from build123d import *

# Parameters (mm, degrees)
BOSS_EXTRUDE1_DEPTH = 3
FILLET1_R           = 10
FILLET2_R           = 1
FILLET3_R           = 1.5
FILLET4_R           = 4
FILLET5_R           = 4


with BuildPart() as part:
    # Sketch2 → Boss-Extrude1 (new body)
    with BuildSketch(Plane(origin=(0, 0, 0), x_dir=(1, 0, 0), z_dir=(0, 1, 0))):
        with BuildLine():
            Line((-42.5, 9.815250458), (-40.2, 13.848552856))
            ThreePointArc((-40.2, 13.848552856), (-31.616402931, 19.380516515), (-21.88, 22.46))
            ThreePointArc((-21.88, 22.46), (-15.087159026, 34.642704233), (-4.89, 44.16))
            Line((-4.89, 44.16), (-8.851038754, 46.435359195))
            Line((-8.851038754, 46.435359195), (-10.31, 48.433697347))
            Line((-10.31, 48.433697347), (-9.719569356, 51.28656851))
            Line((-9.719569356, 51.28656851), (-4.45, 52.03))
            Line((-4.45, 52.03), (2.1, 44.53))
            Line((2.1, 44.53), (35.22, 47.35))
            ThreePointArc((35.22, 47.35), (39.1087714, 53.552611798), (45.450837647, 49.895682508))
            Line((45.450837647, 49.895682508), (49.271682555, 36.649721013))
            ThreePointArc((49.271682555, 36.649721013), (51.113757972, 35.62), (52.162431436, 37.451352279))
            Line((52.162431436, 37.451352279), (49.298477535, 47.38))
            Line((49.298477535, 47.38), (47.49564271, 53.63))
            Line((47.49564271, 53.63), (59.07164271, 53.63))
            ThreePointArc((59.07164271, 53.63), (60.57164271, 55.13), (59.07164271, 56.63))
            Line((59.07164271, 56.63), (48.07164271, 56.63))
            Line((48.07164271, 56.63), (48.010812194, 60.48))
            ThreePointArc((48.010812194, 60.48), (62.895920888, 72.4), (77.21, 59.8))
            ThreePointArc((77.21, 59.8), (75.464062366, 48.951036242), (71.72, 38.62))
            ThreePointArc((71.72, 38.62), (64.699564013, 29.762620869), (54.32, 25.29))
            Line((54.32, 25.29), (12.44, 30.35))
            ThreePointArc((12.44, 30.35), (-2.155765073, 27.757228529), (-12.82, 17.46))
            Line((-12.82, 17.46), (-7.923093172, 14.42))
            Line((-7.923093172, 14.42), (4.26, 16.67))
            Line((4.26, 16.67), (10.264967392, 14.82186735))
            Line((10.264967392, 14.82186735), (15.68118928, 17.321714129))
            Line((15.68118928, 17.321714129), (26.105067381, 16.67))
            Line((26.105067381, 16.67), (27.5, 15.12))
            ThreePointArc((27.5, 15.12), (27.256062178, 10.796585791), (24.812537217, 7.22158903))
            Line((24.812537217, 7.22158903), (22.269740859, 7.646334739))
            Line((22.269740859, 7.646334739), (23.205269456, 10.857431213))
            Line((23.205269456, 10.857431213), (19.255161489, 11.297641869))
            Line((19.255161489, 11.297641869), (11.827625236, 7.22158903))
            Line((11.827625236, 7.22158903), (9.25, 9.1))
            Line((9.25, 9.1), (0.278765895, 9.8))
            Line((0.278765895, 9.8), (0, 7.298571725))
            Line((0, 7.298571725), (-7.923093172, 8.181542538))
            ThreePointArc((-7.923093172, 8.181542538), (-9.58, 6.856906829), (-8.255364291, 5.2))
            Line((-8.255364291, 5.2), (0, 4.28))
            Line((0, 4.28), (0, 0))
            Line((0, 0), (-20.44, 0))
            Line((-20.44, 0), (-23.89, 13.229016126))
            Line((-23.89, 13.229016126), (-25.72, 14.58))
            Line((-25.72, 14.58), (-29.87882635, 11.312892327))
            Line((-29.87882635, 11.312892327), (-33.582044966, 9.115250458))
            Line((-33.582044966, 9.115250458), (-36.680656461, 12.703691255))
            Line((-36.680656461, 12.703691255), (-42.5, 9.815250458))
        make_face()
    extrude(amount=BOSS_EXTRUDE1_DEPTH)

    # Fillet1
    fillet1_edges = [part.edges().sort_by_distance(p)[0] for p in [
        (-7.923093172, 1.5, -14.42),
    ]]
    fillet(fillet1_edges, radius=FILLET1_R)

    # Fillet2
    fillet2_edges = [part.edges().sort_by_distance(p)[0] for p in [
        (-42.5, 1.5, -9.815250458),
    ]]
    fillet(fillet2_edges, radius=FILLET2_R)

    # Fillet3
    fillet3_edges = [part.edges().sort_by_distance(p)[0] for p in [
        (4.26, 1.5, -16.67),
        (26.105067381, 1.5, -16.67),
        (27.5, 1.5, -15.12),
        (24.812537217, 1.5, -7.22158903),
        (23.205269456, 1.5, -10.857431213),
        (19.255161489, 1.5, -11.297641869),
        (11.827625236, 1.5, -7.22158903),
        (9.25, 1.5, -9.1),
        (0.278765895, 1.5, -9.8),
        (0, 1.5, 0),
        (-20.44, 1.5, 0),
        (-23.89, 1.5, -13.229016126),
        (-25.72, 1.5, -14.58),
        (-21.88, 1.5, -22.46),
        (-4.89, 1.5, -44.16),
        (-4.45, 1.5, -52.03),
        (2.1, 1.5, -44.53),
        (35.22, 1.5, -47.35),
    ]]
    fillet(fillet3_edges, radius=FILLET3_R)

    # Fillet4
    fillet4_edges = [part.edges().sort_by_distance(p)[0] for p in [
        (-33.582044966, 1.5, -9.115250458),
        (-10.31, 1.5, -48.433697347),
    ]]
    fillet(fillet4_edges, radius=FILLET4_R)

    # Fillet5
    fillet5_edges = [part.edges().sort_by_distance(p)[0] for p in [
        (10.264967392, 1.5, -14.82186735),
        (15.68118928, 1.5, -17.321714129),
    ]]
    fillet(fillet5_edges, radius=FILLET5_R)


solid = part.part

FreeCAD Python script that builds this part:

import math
import FreeCAD as App
import Part
import Sketcher
from FreeCAD import Vector
Q = App.Units.Quantity


def edges_at(feature, points):
    """Names of the edges that pass closest to the given points."""
    edges = feature.Shape.Edges
    near = lambda p: min(range(len(edges)), key=lambda i: edges[i].distToShape(Part.Vertex(*p))[0])
    return sorted({f"Edge{near(p) + 1}" for p in points})

doc = App.newDocument("Part")
body = doc.addObject("PartDesign::Body", "Body")

# Sketch on XZ plane
sketch1 = doc.addObject("Sketcher::SketchObject", "Sketch")
body.addObject(sketch1)
sketch1.AttachmentSupport = (doc.XZ_Plane, [""])
sketch1.MapMode = "FlatFace"
sketch1.addGeometry(Part.LineSegment(Vector(-40.2, -13.848553, 0), Vector(-42.5, -9.81525, 0)), False)
sketch1.addGeometry(Part.LineSegment(Vector(-42.5, -9.81525, 0), Vector(-36.680656, -12.703691, 0)), False)
sketch1.addGeometry(Part.LineSegment(Vector(-36.680656, -12.703691, 0), Vector(-33.582045, -9.11525, 0)), False)
sketch1.addGeometry(Part.LineSegment(Vector(-33.582045, -9.11525, 0), Vector(-29.878826, -11.312892, 0)), False)
sketch1.addGeometry(Part.LineSegment(Vector(-29.878826, -11.312892, 0), Vector(-25.72, -14.58, 0)), False)
sketch1.addGeometry(Part.LineSegment(Vector(-25.72, -14.58, 0), Vector(-23.89, -13.229016, 0)), False)
sketch1.addGeometry(Part.LineSegment(Vector(-23.89, -13.229016, 0), Vector(-20.44, 0, 0)), False)
sketch1.addGeometry(Part.LineSegment(Vector(-20.44, 0, 0), Vector(0, 0, 0)), False)
sketch1.addGeometry(Part.LineSegment(Vector(0, 0, 0), Vector(0, -4.28, 0)), False)
sketch1.addGeometry(Part.LineSegment(Vector(0, -4.28, 0), Vector(-8.255364, -5.2, 0)), False)
sketch1.addGeometry(Part.ArcOfCircle(Part.Circle(Vector(-8.089229, -6.690771, 0), Vector(0, 0, 1), 1.5), math.radians(96.358957), math.radians(276.358957)), False)
sketch1.addGeometry(Part.LineSegment(Vector(-7.923093, -8.181543, 0), Vector(0, -7.298572, 0)), False)
sketch1.addGeometry(Part.LineSegment(Vector(0, -7.298572, 0), Vector(0.278766, -9.8, 0)), False)
sketch1.addGeometry(Part.LineSegment(Vector(0.278766, -9.8, 0), Vector(9.25, -9.1, 0)), False)
sketch1.addGeometry(Part.LineSegment(Vector(9.25, -9.1, 0), Vector(11.827625, -7.221589, 0)), False)
sketch1.addGeometry(Part.LineSegment(Vector(11.827625, -7.221589, 0), Vector(19.255161, -11.297642, 0)), False)
sketch1.addGeometry(Part.LineSegment(Vector(19.255161, -11.297642, 0), Vector(23.205269, -10.857431, 0)), False)
sketch1.addGeometry(Part.LineSegment(Vector(23.205269, -10.857431, 0), Vector(22.269741, -7.646335, 0)), False)
sketch1.addGeometry(Part.LineSegment(Vector(22.269741, -7.646335, 0), Vector(24.812537, -7.221589, 0)), False)
sketch1.addGeometry(Part.ArcOfCircle(Part.Circle(Vector(19.615642, -13.396266, 0), Vector(0, 0, 1), 8.070586), math.radians(-12.332363), math.radians(49.914477)), False)
sketch1.addGeometry(Part.LineSegment(Vector(27.5, -15.12, 0), Vector(26.105067, -16.67, 0)), False)
sketch1.addGeometry(Part.LineSegment(Vector(26.105067, -16.67, 0), Vector(15.681189, -17.321714, 0)), False)
sketch1.addGeometry(Part.LineSegment(Vector(15.681189, -17.321714, 0), Vector(10.264967, -14.821867, 0)), False)
sketch1.addGeometry(Part.LineSegment(Vector(10.264967, -14.821867, 0), Vector(4.26, -16.67, 0)), False)
sketch1.addGeometry(Part.LineSegment(Vector(4.26, -16.67, 0), Vector(-7.923093, -14.42, 0)), False)
sketch1.addGeometry(Part.LineSegment(Vector(-7.923093, -14.42, 0), Vector(-12.82, -17.46, 0)), False)
sketch1.addGeometry(Part.ArcOfCircle(Part.Circle(Vector(9.392476, -5.126618, 0), Vector(0, 0, 1), 25.406818), math.radians(-150.958964), math.radians(-83.110837)), False)
sketch1.addGeometry(Part.LineSegment(Vector(12.44, -30.35, 0), Vector(54.32, -25.29, 0)), False)
sketch1.addGeometry(Part.ArcOfCircle(Part.Circle(Vector(50.63545, -48.12088, 0), Vector(0, 0, 1), 23.126283), math.radians(24.256736), math.radians(80.832394)), False)
sketch1.addGeometry(Part.ArcOfCircle(Part.Circle(Vector(18.837855, -63.628934, 0), Vector(0, 0, 1), 58.49759), math.radians(3.752953), math.radians(25.310324)), False)
sketch1.addGeometry(Part.ArcOfCircle(Part.Circle(Vector(62.550722, -57.577172, 0), Vector(0, 0, 1), 14.826847), math.radians(-168.709598), math.radians(-8.62224)), False)
sketch1.addGeometry(Part.LineSegment(Vector(48.010812, -60.48, 0), Vector(48.071643, -56.63, 0)), False)
sketch1.addGeometry(Part.LineSegment(Vector(48.071643, -56.63, 0), Vector(59.071643, -56.63, 0)), False)
sketch1.addGeometry(Part.ArcOfCircle(Part.Circle(Vector(59.071643, -55.13, 0), Vector(0, 0, 1), 1.5), math.radians(-90), math.radians(90)), False)
sketch1.addGeometry(Part.LineSegment(Vector(59.071643, -53.63, 0), Vector(47.495643, -53.63, 0)), False)
sketch1.addGeometry(Part.LineSegment(Vector(47.495643, -53.63, 0), Vector(49.298478, -47.38, 0)), False)
sketch1.addGeometry(Part.LineSegment(Vector(49.298478, -47.38, 0), Vector(52.162431, -37.451352, 0)), False)
sketch1.addGeometry(Part.ArcOfCircle(Part.Circle(Vector(50.712921, -37.065451, 0), Vector(0, 0, 1), 1.5), math.radians(-14.907973), math.radians(163.909605)), False)
sketch1.addGeometry(Part.LineSegment(Vector(49.271683, -36.649721, 0), Vector(45.450838, -49.895683, 0)), False)
sketch1.addGeometry(Part.ArcOfCircle(Part.Circle(Vector(40.382482, -48.433697, 0), Vector(0, 0, 1), 5.275), math.radians(168.144728), math.radians(343.909605)), False)
sketch1.addGeometry(Part.LineSegment(Vector(35.22, -47.35, 0), Vector(2.1, -44.53, 0)), False)
sketch1.addGeometry(Part.LineSegment(Vector(2.1, -44.53, 0), Vector(-4.45, -52.03, 0)), False)
sketch1.addGeometry(Part.LineSegment(Vector(-4.45, -52.03, 0), Vector(-9.719569, -51.286569, 0)), False)
sketch1.addGeometry(Part.LineSegment(Vector(-9.719569, -51.286569, 0), Vector(-10.31, -48.433697, 0)), False)
sketch1.addGeometry(Part.LineSegment(Vector(-10.31, -48.433697, 0), Vector(-8.851039, -46.435359, 0)), False)
sketch1.addGeometry(Part.LineSegment(Vector(-8.851039, -46.435359, 0), Vector(-4.89, -44.16, 0)), False)
sketch1.addGeometry(Part.ArcOfCircle(Part.Circle(Vector(20.344268, -6.901693, 0), Vector(0, 0, 1), 44.999441), math.radians(-159.772754), math.radians(-124.108959)), False)
sketch1.addGeometry(Part.ArcOfCircle(Part.Circle(Vector(-15.246348, 15.445153, 0), Vector(0, 0, 1), 38.481242), math.radians(-130.425801), math.radians(-99.926613)), False)
sketch1.addConstraint(Sketcher.Constraint("Coincident", 0, 2, 1, 1))
sketch1.addConstraint(Sketcher.Constraint("Coincident", 1, 2, 2, 1))
sketch1.addConstraint(Sketcher.Constraint("Coincident", 2, 2, 3, 1))
sketch1.addConstraint(Sketcher.Constraint("Coincident", 3, 2, 4, 1))
sketch1.addConstraint(Sketcher.Constraint("Coincident", 4, 2, 5, 1))
sketch1.addConstraint(Sketcher.Constraint("Coincident", 5, 2, 6, 1))
sketch1.addConstraint(Sketcher.Constraint("Coincident", 6, 2, 7, 1))
sketch1.addConstraint(Sketcher.Constraint("Coincident", 7, 2, 8, 1))
sketch1.addConstraint(Sketcher.Constraint("Coincident", 8, 2, 9, 1))
sketch1.addConstraint(Sketcher.Constraint("Coincident", 9, 2, 10, 1))
sketch1.addConstraint(Sketcher.Constraint("Coincident", 10, 2, 11, 1))
sketch1.addConstraint(Sketcher.Constraint("Coincident", 11, 2, 12, 1))
sketch1.addConstraint(Sketcher.Constraint("Coincident", 12, 2, 13, 1))
sketch1.addConstraint(Sketcher.Constraint("Coincident", 13, 2, 14, 1))
sketch1.addConstraint(Sketcher.Constraint("Coincident", 14, 2, 15, 1))
sketch1.addConstraint(Sketcher.Constraint("Coincident", 15, 2, 16, 1))
sketch1.addConstraint(Sketcher.Constraint("Coincident", 16, 2, 17, 1))
sketch1.addConstraint(Sketcher.Constraint("Coincident", 17, 2, 18, 1))
sketch1.addConstraint(Sketcher.Constraint("Coincident", 18, 2, 19, 2))
sketch1.addConstraint(Sketcher.Constraint("Coincident", 19, 1, 20, 1))
sketch1.addConstraint(Sketcher.Constraint("Coincident", 20, 2, 21, 1))
sketch1.addConstraint(Sketcher.Constraint("Coincident", 21, 2, 22, 1))
sketch1.addConstraint(Sketcher.Constraint("Coincident", 22, 2, 23, 1))
sketch1.addConstraint(Sketcher.Constraint("Coincident", 23, 2, 24, 1))
sketch1.addConstraint(Sketcher.Constraint("Coincident", 24, 2, 25, 1))
sketch1.addConstraint(Sketcher.Constraint("Coincident", 25, 2, 26, 1))
sketch1.addConstraint(Sketcher.Constraint("Coincident", 26, 2, 27, 1))
sketch1.addConstraint(Sketcher.Constraint("Coincident", 27, 2, 28, 2))
sketch1.addConstraint(Sketcher.Constraint("Coincident", 28, 1, 29, 2))
sketch1.addConstraint(Sketcher.Constraint("Coincident", 29, 1, 30, 2))
sketch1.addConstraint(Sketcher.Constraint("Coincident", 30, 1, 31, 1))
sketch1.addConstraint(Sketcher.Constraint("Coincident", 31, 2, 32, 1))
sketch1.addConstraint(Sketcher.Constraint("Coincident", 32, 2, 33, 1))
sketch1.addConstraint(Sketcher.Constraint("Coincident", 33, 2, 34, 1))
sketch1.addConstraint(Sketcher.Constraint("Coincident", 34, 2, 35, 1))
sketch1.addConstraint(Sketcher.Constraint("Coincident", 35, 2, 36, 1))
sketch1.addConstraint(Sketcher.Constraint("Coincident", 36, 2, 37, 1))
sketch1.addConstraint(Sketcher.Constraint("Coincident", 37, 2, 38, 1))
sketch1.addConstraint(Sketcher.Constraint("Coincident", 38, 2, 39, 2))
sketch1.addConstraint(Sketcher.Constraint("Coincident", 39, 1, 40, 1))
sketch1.addConstraint(Sketcher.Constraint("Coincident", 40, 2, 41, 1))
sketch1.addConstraint(Sketcher.Constraint("Coincident", 41, 2, 42, 1))
sketch1.addConstraint(Sketcher.Constraint("Coincident", 42, 2, 43, 1))
sketch1.addConstraint(Sketcher.Constraint("Coincident", 43, 2, 44, 1))
sketch1.addConstraint(Sketcher.Constraint("Coincident", 44, 2, 45, 1))
sketch1.addConstraint(Sketcher.Constraint("Coincident", 45, 2, 46, 2))
sketch1.addConstraint(Sketcher.Constraint("Coincident", 46, 1, 47, 2))
sketch1.addConstraint(Sketcher.Constraint("Coincident", 47, 1, 0, 1))
sketch1.addConstraint(Sketcher.Constraint("Horizontal", 7))
sketch1.addConstraint(Sketcher.Constraint("Vertical", 8))
sketch1.addConstraint(Sketcher.Constraint("Horizontal", 32))
sketch1.addConstraint(Sketcher.Constraint("Horizontal", 34))
sketch1.addConstraint(Sketcher.Constraint("Coincident", 7, 2, -1, 1))
sketch1.addConstraint(Sketcher.Constraint("PointOnObject", 11, 2, -2))
sketch1.addConstraint(Sketcher.Constraint("Radius", 10, Q("1.5 mm")))
sketch1.addConstraint(Sketcher.Constraint("Radius", 33, Q("1.5 mm")))
sketch1.addConstraint(Sketcher.Constraint("Radius", 37, Q("1.5 mm")))
sketch1.addConstraint(Sketcher.Constraint("DistanceX", 32, 1, 32, 2, Q("11 mm")))
sketch1.addConstraint(Sketcher.Constraint("Radius", 39, Q("5.275 mm")))
sketch1.addConstraint(Sketcher.Constraint("DistanceX", 31, 2, 33, 3, Q("11 mm")))
sketch1.addConstraint(Sketcher.Constraint("DistanceX", 31, 2, 33, 2, Q("11 mm")))
sketch1.addConstraint(Sketcher.Constraint("DistanceY", 46, 1, 25, 2, Q("5 mm")))
sketch1.addConstraint(Sketcher.Constraint("DistanceX", 7, 1, 7, 2, Q("20.44 mm")))
sketch1.addConstraint(Sketcher.Constraint("DistanceY", 8, 2, 8, 1, Q("4.28 mm")))
sketch1.addConstraint(Sketcher.Constraint("DistanceX", 0, 2, -1, 1, Q("42.5 mm")))
sketch1.addConstraint(Sketcher.Constraint("DistanceY", 9, 2, -1, 1, Q("5.2 mm")))
sketch1.addConstraint(Sketcher.Constraint("DistanceY", 12, 2, -1, 1, Q("9.8 mm")))
sketch1.addConstraint(Sketcher.Constraint("DistanceY", 13, 2, -1, 1, Q("9.1 mm")))
sketch1.addConstraint(Sketcher.Constraint("DistanceX", -1, 1, 19, 1, Q("27.5 mm")))
sketch1.addConstraint(Sketcher.Constraint("DistanceY", 29, 1, -1, 1, Q("59.8 mm")))
sketch1.addConstraint(Sketcher.Constraint("DistanceX", -1, 1, 40, 2, Q("2.1 mm")))
sketch1.addConstraint(Sketcher.Constraint("DistanceX", 47, 1, -1, 1, Q("40.2 mm")))
sketch1.addConstraint(Sketcher.Constraint("DistanceY", 0, 2, 2, 2, Q("0.7 mm")))
sketch1.addConstraint(Sketcher.Constraint("DistanceX", 27, 2, 28, 1, Q("17.4 mm")))
sketch1.addConstraint(Sketcher.Constraint("DistanceY", 41, 2, 40, 2, Q("7.5 mm")))
sketch1.addConstraint(Sketcher.Constraint("DistanceX", 34, 2, 34, 1, Q("11.576 mm")))
sketch1.addConstraint(Sketcher.Constraint("DistanceY", 33, 3, -1, 1, Q("55.13 mm")))
sketch1.addConstraint(Sketcher.Constraint("DistanceX", 4, 2, -1, 1, Q("25.72 mm")))
sketch1.addConstraint(Sketcher.Constraint("DistanceY", 4, 2, -1, 1, Q("14.58 mm")))
sketch1.addConstraint(Sketcher.Constraint("DistanceX", 5, 2, -1, 1, Q("23.89 mm")))
sketch1.addConstraint(Sketcher.Constraint("DistanceX", -1, 1, 13, 2, Q("9.25 mm")))
sketch1.addConstraint(Sketcher.Constraint("DistanceY", 19, 1, -1, 1, Q("15.12 mm")))
sketch1.addConstraint(Sketcher.Constraint("DistanceY", 20, 2, -1, 1, Q("16.67 mm")))
sketch1.addConstraint(Sketcher.Constraint("DistanceX", -1, 1, 23, 2, Q("4.26 mm")))
sketch1.addConstraint(Sketcher.Constraint("DistanceY", 23, 2, -1, 1, Q("16.67 mm")))
sketch1.addConstraint(Sketcher.Constraint("DistanceY", 24, 2, -1, 1, Q("14.42 mm")))
sketch1.addConstraint(Sketcher.Constraint("DistanceX", 25, 2, -1, 1, Q("12.82 mm")))
sketch1.addConstraint(Sketcher.Constraint("DistanceY", 25, 2, -1, 1, Q("17.46 mm")))
sketch1.addConstraint(Sketcher.Constraint("DistanceX", -1, 1, 26, 2, Q("12.44 mm")))
sketch1.addConstraint(Sketcher.Constraint("DistanceY", 26, 2, -1, 1, Q("30.35 mm")))
sketch1.addConstraint(Sketcher.Constraint("DistanceX", -1, 1, 27, 2, Q("54.32 mm")))
sketch1.addConstraint(Sketcher.Constraint("DistanceY", 27, 2, -1, 1, Q("25.29 mm")))
sketch1.addConstraint(Sketcher.Constraint("DistanceY", 28, 1, -1, 1, Q("38.62 mm")))
sketch1.addConstraint(Sketcher.Constraint("DistanceX", -1, 1, 29, 1, Q("77.21 mm")))
sketch1.addConstraint(Sketcher.Constraint("DistanceY", 30, 1, -1, 1, Q("60.48 mm")))
sketch1.addConstraint(Sketcher.Constraint("DistanceY", 35, 2, -1, 1, Q("47.38 mm")))
sketch1.addConstraint(Sketcher.Constraint("DistanceX", -1, 1, 39, 1, Q("35.22 mm")))
sketch1.addConstraint(Sketcher.Constraint("DistanceY", 39, 1, -1, 1, Q("47.35 mm")))
sketch1.addConstraint(Sketcher.Constraint("DistanceY", 40, 2, -1, 1, Q("44.53 mm")))
sketch1.addConstraint(Sketcher.Constraint("DistanceX", 41, 2, -1, 1, Q("4.45 mm")))
sketch1.addConstraint(Sketcher.Constraint("DistanceX", 43, 2, -1, 1, Q("10.31 mm")))
sketch1.addConstraint(Sketcher.Constraint("DistanceX", 45, 2, -1, 1, Q("4.89 mm")))
sketch1.addConstraint(Sketcher.Constraint("DistanceY", 45, 2, -1, 1, Q("44.16 mm")))
sketch1.addConstraint(Sketcher.Constraint("DistanceX", 46, 1, -1, 1, Q("21.88 mm")))
sketch1.addConstraint(Sketcher.Constraint("Radius", 29, Q("58.49759 mm")))
sketch1.addConstraint(Sketcher.Constraint("Radius", 46, Q("44.999441 mm")))
sketch1.addConstraint(Sketcher.Constraint("Radius", 19, Q("8.070586 mm")))
sketch1.addConstraint(Sketcher.Constraint("Radius", 26, Q("25.406818 mm")))
sketch1.addConstraint(Sketcher.Constraint("Radius", 28, Q("23.126283 mm")))
sketch1.addConstraint(Sketcher.Constraint("Radius", 30, Q("14.826847 mm")))
sketch1.addConstraint(Sketcher.Constraint("Radius", 47, Q("38.481242 mm")))
sketch1.addConstraint(Sketcher.Constraint("DistanceX", 19, 3, 33, 3, Q("39.456001 mm")))
sketch1.addConstraint(Sketcher.Constraint("DistanceX", 46, 3, 16, 2, Q("2.861002 mm")))
sketch1.addConstraint(Sketcher.Constraint("Distance", 17, Q("3.344601 mm")))
sketch1.addConstraint(Sketcher.Constraint("DistanceY", 30, 3, 10, 3, Q("50.886401 mm")))
sketch1.addConstraint(Sketcher.Constraint("DistanceX", 37, 3, 30, 3, Q("11.837801 mm")))
sketch1.addConstraint(Sketcher.Constraint("DistanceX", 1, 2, 19, 3, Q("56.296299 mm")))
sketch1.addConstraint(Sketcher.Constraint("DistanceY", 1, 2, 3, 2, Q("1.390799 mm")))
sketch1.addConstraint(Sketcher.Constraint("DistanceY", 11, 2, 10, 3, Q("0.6078 mm")))
sketch1.addConstraint(Sketcher.Constraint("DistanceX", 19, 3, 17, 2, Q("2.654099 mm")))
sketch1.addConstraint(Sketcher.Constraint("DistanceY", 22, 2, 19, 3, Q("1.425601 mm")))
sketch1.addConstraint(Sketcher.Constraint("DistanceY", 36, 2, 37, 3, Q("0.385901 mm")))
sketch1.addConstraint(Sketcher.Constraint("Distance", 0, Q("4.643009 mm")))
sketch1.addConstraint(Sketcher.Constraint("Distance", 2, Q("4.741129 mm")))
sketch1.addConstraint(Sketcher.Constraint("Distance", 3, Q("4.306212 mm")))
sketch1.addConstraint(Sketcher.Constraint("Distance", 4, Q("5.288651 mm")))
sketch1.addConstraint(Sketcher.Constraint("Distance", 6, Q("13.67148 mm")))
sketch1.addConstraint(Sketcher.Constraint("Distance", 9, Q("8.30647 mm")))
sketch1.addConstraint(Sketcher.Constraint("Distance", 11, Q("7.972142 mm")))
sketch1.addConstraint(Sketcher.Constraint("Distance", 14, Q("3.189448 mm")))
sketch1.addConstraint(Sketcher.Constraint("Distance", 16, Q("3.974561 mm")))
sketch1.addConstraint(Sketcher.Constraint("Distance", 21, Q("10.444231 mm")))
sketch1.addConstraint(Sketcher.Constraint("Distance", 22, Q("5.965291 mm")))
sketch1.addConstraint(Sketcher.Constraint("Distance", 23, Q("6.282931 mm")))
sketch1.addConstraint(Sketcher.Constraint("Distance", 24, Q("12.389119 mm")))
sketch1.addConstraint(Sketcher.Constraint("Distance", 38, Q("13.78602 mm")))
sketch1.addConstraint(Sketcher.Constraint("Distance", 43, Q("2.913328 mm")))
sketch1.addConstraint(Sketcher.Constraint("Distance", 45, Q("4.568051 mm")))
sketch1.addConstraint(Sketcher.Constraint("DistanceX", 10, 3, -1, 1, Q("8.089229 mm")))
sketch1.addConstraint(Sketcher.Constraint("DistanceY", 37, 3, -1, 1, Q("37.065451 mm")))
sketch1.addConstraint(Sketcher.Constraint("DistanceY", 0, 2, -1, 1, Q("9.81525 mm")))
sketch1.addConstraint(Sketcher.Constraint("DistanceY", 1, 2, -1, 1, Q("12.703691 mm")))
sketch1.addConstraint(Sketcher.Constraint("DistanceY", 14, 2, -1, 1, Q("7.221589 mm")))
sketch1.addConstraint(Sketcher.Constraint("DistanceX", -1, 1, 15, 2, Q("19.255161 mm")))
sketch1.addConstraint(Sketcher.Constraint("DistanceY", 15, 2, -1, 1, Q("11.297642 mm")))
sketch1.addConstraint(Sketcher.Constraint("DistanceY", 18, 2, -1, 1, Q("7.221589 mm")))
sketch1.addConstraint(Sketcher.Constraint("DistanceX", -1, 1, 21, 2, Q("15.681189 mm")))
sketch1.addConstraint(Sketcher.Constraint("DistanceY", 37, 2, -1, 1, Q("36.649721 mm")))
sketch1.addConstraint(Sketcher.Constraint("DistanceX", 42, 2, -1, 1, Q("9.719569 mm")))
sketch1.addConstraint(Sketcher.Constraint("DistanceY", 42, 2, -1, 1, Q("51.286569 mm")))
sketch1.addConstraint(Sketcher.Constraint("DistanceX", 44, 2, -1, 1, Q("8.851039 mm")))
sketch1.addConstraint(Sketcher.Constraint("DistanceX", 39, 3, 37, 3, Q("10.330439 mm")))
sketch1.addConstraint(Sketcher.Constraint("DistanceX", 10, 2, 12, 2, Q("8.201859 mm")))
sketch1.addConstraint(Sketcher.Constraint("DistanceX", 38, 2, 35, 2, Q("3.84764 mm")))
pad1 = doc.addObject("PartDesign::Pad", "Pad")
body.addObject(pad1)
pad1.Profile = sketch1
pad1.Length = 3
pad1.Reversed = True
doc.recompute()

fillet = doc.addObject("PartDesign::Fillet", "Fillet")
body.addObject(fillet)
fillet.Base = (pad1, edges_at(pad1, [(-7.923, 1.5, -14.42)]))
fillet.Radius = 10
doc.recompute()

fillet2 = doc.addObject("PartDesign::Fillet", "Fillet001")
body.addObject(fillet2)
fillet2.Base = (fillet, edges_at(fillet, [(-42.5, 1.5, -9.815)]))
fillet2.Radius = 1
doc.recompute()

fillet3 = doc.addObject("PartDesign::Fillet", "Fillet002")
body.addObject(fillet3)
fillet3.Base = (fillet2, edges_at(fillet2, [
    (4.26, 1.5, -16.67),
    (26.105, 1.5, -16.67),
    (27.5, 1.5, -15.12),
    (24.813, 1.5, -7.222),
    (23.205, 1.5, -10.857),
    (19.255, 1.5, -11.298),
    (11.828, 1.5, -7.222),
    (9.25, 1.5, -9.1),
    (0.279, 1.5, -9.8),
    (0, 1.5, 0),
    (-20.44, 1.5, 0),
    (-23.89, 1.5, -13.229),
    (-25.72, 1.5, -14.58),
    (-21.88, 1.5, -22.46),
    (-4.89, 1.5, -44.16),
    (-4.45, 1.5, -52.03),
    (2.1, 1.5, -44.53),
    (35.22, 1.5, -47.35),
]))
fillet3.Radius = 1.5
doc.recompute()

fillet4 = doc.addObject("PartDesign::Fillet", "Fillet003")
body.addObject(fillet4)
fillet4.Base = (fillet3, edges_at(fillet3, [(-33.582, 1.5, -9.115), (-10.31, 1.5, -48.434)]))
fillet4.Radius = 4
doc.recompute()

fillet5 = doc.addObject("PartDesign::Fillet", "Fillet004")
body.addObject(fillet5)
fillet5.Base = (fillet4, edges_at(fillet4, [(10.265, 1.5, -14.822), (15.681, 1.5, -17.322)]))
fillet5.Radius = 4

doc.recompute()
